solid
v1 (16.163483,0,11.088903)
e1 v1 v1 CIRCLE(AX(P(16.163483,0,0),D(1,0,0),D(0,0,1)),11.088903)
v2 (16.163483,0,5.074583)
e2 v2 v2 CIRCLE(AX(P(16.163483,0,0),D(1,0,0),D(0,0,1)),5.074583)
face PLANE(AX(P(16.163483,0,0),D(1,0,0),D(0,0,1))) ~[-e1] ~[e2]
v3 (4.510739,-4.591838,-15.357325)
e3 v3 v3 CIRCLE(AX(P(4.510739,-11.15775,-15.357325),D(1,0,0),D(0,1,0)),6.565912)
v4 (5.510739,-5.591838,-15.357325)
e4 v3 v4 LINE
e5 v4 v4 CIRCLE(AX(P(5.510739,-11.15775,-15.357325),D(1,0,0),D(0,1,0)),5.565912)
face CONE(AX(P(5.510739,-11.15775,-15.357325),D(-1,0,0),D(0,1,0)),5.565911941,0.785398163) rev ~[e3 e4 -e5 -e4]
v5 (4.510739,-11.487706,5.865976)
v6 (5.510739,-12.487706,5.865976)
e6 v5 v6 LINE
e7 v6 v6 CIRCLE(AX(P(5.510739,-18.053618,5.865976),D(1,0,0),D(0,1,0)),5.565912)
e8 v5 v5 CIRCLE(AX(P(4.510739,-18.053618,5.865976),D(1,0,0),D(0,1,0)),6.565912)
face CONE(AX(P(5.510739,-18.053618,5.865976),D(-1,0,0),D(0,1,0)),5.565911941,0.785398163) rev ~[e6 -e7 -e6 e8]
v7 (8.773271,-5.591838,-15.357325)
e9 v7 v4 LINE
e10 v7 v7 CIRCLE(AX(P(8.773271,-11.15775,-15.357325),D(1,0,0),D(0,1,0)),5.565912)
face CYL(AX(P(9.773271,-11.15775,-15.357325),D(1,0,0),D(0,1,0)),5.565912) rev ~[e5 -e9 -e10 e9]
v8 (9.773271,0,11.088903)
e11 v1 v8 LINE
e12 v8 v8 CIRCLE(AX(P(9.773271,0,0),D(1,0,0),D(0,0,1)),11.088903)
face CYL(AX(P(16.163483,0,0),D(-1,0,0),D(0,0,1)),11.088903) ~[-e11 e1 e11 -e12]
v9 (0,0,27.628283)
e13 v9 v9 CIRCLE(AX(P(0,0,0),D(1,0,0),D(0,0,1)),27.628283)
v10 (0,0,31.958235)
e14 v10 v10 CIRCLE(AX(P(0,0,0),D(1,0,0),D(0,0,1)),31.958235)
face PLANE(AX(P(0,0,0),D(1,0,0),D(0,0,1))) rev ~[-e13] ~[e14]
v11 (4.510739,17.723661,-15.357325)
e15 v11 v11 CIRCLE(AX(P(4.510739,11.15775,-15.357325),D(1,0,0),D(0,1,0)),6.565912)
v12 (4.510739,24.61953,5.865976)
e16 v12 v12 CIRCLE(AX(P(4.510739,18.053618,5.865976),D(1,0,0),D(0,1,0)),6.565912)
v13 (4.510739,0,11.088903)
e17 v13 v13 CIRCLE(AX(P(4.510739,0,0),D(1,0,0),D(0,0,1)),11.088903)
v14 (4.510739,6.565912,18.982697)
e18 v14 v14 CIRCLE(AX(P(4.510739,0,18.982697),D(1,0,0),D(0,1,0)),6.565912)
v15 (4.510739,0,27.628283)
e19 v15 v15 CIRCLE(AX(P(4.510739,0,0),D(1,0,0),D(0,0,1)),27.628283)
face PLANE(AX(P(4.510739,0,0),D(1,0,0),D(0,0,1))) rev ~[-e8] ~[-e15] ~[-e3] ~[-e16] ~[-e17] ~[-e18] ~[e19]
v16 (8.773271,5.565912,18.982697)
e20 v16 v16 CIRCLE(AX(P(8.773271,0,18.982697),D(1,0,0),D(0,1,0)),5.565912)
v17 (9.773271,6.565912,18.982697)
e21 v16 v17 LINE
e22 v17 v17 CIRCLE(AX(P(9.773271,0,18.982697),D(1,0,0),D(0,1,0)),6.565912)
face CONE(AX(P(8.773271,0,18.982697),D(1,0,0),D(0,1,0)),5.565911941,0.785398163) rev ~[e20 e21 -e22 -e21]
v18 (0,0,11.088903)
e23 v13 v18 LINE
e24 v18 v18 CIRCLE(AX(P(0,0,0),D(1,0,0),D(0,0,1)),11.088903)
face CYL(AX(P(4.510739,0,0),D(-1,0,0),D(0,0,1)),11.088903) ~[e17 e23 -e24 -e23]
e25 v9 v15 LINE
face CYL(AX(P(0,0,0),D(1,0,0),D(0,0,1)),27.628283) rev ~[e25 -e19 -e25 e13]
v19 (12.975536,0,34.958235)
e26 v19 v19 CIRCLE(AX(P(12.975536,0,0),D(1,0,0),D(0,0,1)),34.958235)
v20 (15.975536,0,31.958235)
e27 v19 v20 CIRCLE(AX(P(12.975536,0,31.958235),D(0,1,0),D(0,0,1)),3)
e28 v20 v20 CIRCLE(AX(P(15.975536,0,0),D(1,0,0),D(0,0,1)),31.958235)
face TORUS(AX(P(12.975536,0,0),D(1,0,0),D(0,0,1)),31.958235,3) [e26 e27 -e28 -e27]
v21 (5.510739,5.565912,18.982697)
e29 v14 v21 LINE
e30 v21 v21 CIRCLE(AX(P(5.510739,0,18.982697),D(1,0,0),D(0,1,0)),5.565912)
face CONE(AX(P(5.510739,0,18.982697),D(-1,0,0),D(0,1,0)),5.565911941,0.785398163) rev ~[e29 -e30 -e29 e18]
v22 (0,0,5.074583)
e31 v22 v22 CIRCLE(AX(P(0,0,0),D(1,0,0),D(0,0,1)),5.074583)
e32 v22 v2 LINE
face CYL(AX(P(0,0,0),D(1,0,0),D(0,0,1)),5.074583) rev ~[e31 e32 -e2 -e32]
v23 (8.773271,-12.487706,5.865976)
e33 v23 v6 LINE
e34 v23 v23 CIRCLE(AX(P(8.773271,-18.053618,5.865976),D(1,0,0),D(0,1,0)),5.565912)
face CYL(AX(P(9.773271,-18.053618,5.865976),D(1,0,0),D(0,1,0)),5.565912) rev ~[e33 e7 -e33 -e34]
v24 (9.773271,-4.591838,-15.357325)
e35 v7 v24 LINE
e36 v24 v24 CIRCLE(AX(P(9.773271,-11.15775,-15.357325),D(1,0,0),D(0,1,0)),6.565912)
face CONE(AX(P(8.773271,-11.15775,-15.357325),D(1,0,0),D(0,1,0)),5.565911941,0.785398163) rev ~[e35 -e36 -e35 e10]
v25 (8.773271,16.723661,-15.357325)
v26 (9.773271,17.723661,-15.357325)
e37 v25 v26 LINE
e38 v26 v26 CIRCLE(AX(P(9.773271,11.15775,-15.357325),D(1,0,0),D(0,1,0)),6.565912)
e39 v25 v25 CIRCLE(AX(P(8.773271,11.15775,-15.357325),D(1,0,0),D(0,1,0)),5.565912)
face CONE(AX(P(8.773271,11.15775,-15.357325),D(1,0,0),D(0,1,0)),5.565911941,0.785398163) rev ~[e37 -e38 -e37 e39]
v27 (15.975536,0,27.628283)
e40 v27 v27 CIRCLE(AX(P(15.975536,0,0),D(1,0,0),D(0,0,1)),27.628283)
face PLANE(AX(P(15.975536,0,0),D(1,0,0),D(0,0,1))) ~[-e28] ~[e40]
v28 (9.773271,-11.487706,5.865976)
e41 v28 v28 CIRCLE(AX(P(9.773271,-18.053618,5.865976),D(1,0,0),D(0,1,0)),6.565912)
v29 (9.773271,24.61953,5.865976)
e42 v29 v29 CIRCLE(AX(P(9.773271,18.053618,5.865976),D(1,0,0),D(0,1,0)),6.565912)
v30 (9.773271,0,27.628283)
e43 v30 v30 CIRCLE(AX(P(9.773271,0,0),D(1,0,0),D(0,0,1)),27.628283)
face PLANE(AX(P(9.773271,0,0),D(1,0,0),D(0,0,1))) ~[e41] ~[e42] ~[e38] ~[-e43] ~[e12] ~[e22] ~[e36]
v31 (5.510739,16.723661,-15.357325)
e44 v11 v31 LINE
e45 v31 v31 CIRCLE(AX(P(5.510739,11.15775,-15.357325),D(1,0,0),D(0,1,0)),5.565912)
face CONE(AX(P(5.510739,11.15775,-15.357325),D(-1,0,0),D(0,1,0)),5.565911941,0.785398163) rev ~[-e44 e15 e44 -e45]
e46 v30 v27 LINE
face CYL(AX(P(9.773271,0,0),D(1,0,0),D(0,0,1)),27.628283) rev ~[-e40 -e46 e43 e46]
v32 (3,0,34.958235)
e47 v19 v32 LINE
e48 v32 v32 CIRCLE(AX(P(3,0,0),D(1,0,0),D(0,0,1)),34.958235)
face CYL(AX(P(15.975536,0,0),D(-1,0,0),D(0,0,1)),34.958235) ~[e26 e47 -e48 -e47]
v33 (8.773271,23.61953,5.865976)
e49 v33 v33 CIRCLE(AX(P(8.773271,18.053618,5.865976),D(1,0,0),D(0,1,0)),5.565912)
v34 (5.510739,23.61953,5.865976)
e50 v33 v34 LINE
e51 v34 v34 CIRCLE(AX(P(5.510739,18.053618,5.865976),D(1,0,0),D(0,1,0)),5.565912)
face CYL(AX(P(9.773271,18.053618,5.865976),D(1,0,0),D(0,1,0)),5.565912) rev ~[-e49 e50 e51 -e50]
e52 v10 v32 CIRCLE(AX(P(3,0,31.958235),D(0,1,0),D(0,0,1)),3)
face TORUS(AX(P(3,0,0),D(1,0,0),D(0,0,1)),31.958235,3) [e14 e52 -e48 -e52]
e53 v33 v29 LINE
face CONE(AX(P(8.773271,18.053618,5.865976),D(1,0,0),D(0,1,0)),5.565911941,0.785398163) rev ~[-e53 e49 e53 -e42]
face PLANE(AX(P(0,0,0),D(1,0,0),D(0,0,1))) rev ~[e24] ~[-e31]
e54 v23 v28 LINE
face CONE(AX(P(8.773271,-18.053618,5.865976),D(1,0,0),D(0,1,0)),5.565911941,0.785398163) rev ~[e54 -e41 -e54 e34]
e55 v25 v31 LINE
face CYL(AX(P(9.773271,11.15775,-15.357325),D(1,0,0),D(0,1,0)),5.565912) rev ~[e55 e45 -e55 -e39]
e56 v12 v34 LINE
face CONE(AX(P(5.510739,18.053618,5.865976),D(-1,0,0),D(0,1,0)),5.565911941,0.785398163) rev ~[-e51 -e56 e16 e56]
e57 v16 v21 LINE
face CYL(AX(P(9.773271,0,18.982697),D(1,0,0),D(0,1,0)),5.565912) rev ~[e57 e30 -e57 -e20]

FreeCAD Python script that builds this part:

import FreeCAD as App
import Part
import Sketcher
Q = App.Units.Quantity


def edges_at(feature, points):
    """Names of the edges that pass closest to the given points."""
    edges = feature.Shape.Edges
    near = lambda p: min(range(len(edges)), key=lambda i: edges[i].distToShape(Part.Vertex(*p))[0])
    return sorted({f"Edge{near(p) + 1}" for p in points})


def add_polygon(sketch, points):
    """Adds a closed chain of lines whose ends are joined by coincident constraints."""
    first, n = sketch.GeometryCount, len(points)
    for a, b in zip(points, points[1:] + points[:1]):
        sketch.addGeometry(Part.LineSegment(App.Vector(*a, 0), App.Vector(*b, 0)), False)
    for i in range(n):
        sketch.addConstraint(Sketcher.Constraint("Coincident", first + i, 2, first + (i + 1) % n, 1))

doc = App.newDocument("Part")
params = doc.addObject("Spreadsheet::Sheet", "Params")
for row, (alias, value) in enumerate([
    ("revolution_angle", "360 deg"),
    ("pocket1_length", "25 mm"),
    ("fillet_radius", "3 mm"),
    ("chamfer_size", "1 mm"),
], start=1):
    params.set(f"A{row}", alias)
    params.set(f"B{row}", "=" + value)
    params.setAlias(f"B{row}", alias)

body = doc.addObject("PartDesign::Body", "Body")

sketch1 = doc.addObject("Sketcher::SketchObject", "Sketch")
body.addObject(sketch1)
sketch1.AttachmentSupport = (doc.XZ_Plane, [""])
sketch1.MapMode = "FlatFace"
add_polygon(sketch1, [(0, 11.1), (0, 5.1), (16.2, 5.1), (16.2, 11.1), (9.8, 11.1), (9.8, 27.6), (16, 27.6), (16, 35), (0, 35), (0, 27.6), (4.5, 27.6), (4.5, 11.1)])
sketch1.addConstraint(Sketcher.Constraint("Vertical", 0))
sketch1.addConstraint(Sketcher.Constraint("Horizontal", 1))
sketch1.addConstraint(Sketcher.Constraint("Vertical", 2))
sketch1.addConstraint(Sketcher.Constraint("Horizontal", 3))
sketch1.addConstraint(Sketcher.Constraint("Vertical", 4))
sketch1.addConstraint(Sketcher.Constraint("Horizontal", 5))
sketch1.addConstraint(Sketcher.Constraint("Vertical", 6))
sketch1.addConstraint(Sketcher.Constraint("Horizontal", 7))
sketch1.addConstraint(Sketcher.Constraint("Vertical", 8))
sketch1.addConstraint(Sketcher.Constraint("Horizontal", 9))
sketch1.addConstraint(Sketcher.Constraint("Vertical", 10))
sketch1.addConstraint(Sketcher.Constraint("Horizontal", 11))
sketch1.addConstraint(Sketcher.Constraint("PointOnObject", 0, 2, -2))
sketch1.addConstraint(Sketcher.Constraint("PointOnObject", 7, 2, -2))
sketch1.addConstraint(Sketcher.Constraint("Horizontal", 5, 2, 8, 2))
sketch1.addConstraint(Sketcher.Constraint("Horizontal", 3, 2, 10, 2))
sketch1.addConstraint(Sketcher.Constraint("DistanceX", 9, 1, 9, 2, Q("4.510739 mm")))
sketch1.addConstraint(Sketcher.Constraint("DistanceY", 0, 2, 0, 1, Q("6.01432 mm")))
sketch1.addConstraint(Sketcher.Constraint("DistanceY", 4, 1, 4, 2, Q("16.53938 mm")))
sketch1.addConstraint(Sketcher.Constraint("DistanceY", 6, 1, 6, 2, Q("7.329952 mm")))
sketch1.addConstraint(Sketcher.Constraint("DistanceX", 1, 1, 1, 2, Q("16.163483 mm")))
sketch1.addConstraint(Sketcher.Constraint("DistanceX", 3, 2, 3, 1, Q("6.390213 mm")))
sketch1.addConstraint(Sketcher.Constraint("DistanceX", 5, 1, 5, 2, Q("6.202265 mm")))
sketch1.addConstraint(Sketcher.Constraint("DistanceY", -1, 1, 0, 2, Q("5.074583 mm")))
revolution = doc.addObject("PartDesign::Revolution", "Revolution")
body.addObject(revolution)
revolution.Profile = sketch1
revolution.ReferenceAxis = (sketch1, ["H_Axis"])
revolution.setExpression("Angle", "Params.revolution_angle")

sketch2 = doc.addObject("Sketcher::SketchObject", "Sketch001")
body.addObject(sketch2)
sketch2.AttachmentSupport = (doc.YZ_Plane, [""])
sketch2.MapMode = "FlatFace"
sketch2.AttachmentOffset = App.Placement(App.Vector(0, 0, 9.773271), App.Rotation())
sketch2.addGeometry(Part.Circle(App.Vector(0, 19, 0), App.Vector(0, 0, 1), 6), False)
sketch2.addGeometry(Part.Circle(App.Vector(18, 6, 0), App.Vector(0, 0, 1), 6), False)
sketch2.addGeometry(Part.Circle(App.Vector(11, -15, 0), App.Vector(0, 0, 1), 6), False)
sketch2.addGeometry(Part.Circle(App.Vector(-18, 6, 0), App.Vector(0, 0, 1), 6), False)
sketch2.addGeometry(Part.Circle(App.Vector(-11, -15, 0), App.Vector(0, 0, 1), 6), False)
sketch2.addConstraint(Sketcher.Constraint("Equal", 0, 1))
sketch2.addConstraint(Sketcher.Constraint("Equal", 1, 2))
sketch2.addConstraint(Sketcher.Constraint("Equal", 2, 3))
sketch2.addConstraint(Sketcher.Constraint("Equal", 3, 4))
sketch2.addConstraint(Sketcher.Constraint("Symmetric", 1, 3, 3, 3, -2))
sketch2.addConstraint(Sketcher.Constraint("Symmetric", 2, 3, 4, 3, -2))
sketch2.addConstraint(Sketcher.Constraint("PointOnObject", 0, 3, -2))
sketch2.addConstraint(Sketcher.Constraint("Diameter", 0, Q("11.131824 mm")))
sketch2.addConstraint(Sketcher.Constraint("DistanceY", 2, 3, 1, 3, Q("21.223301 mm")))
sketch2.addConstraint(Sketcher.Constraint("DistanceX", 4, 3, 2, 3, Q("22.315499 mm")))
sketch2.addConstraint(Sketcher.Constraint("DistanceY", 1, 3, 0, 3, Q("13.116721 mm")))
sketch2.addConstraint(Sketcher.Constraint("DistanceX", 2, 3, 1, 3, Q("6.895868 mm")))
sketch2.addConstraint(Sketcher.Constraint("DistanceY", -1, 1, 0, 3, Q("18.982697 mm")))
pocket1 = doc.addObject("PartDesign::Pocket", "Pocket")
body.addObject(pocket1)
pocket1.Profile = sketch2
pocket1.setExpression("Length", "Params.pocket1_length")
doc.recompute()

fillet = doc.addObject("PartDesign::Fillet", "Fillet")
body.addObject(fillet)
fillet.Base = (pocket1, edges_at(pocket1, [(15.976, 0, -34.958), (0, 0, -34.958)]))
fillet.setExpression("Radius", "Params.fillet_radius")
doc.recompute()

chamfer = doc.addObject("PartDesign::Chamfer", "Chamfer")
body.addObject(chamfer)
chamfer.Base = (fillet, edges_at(fillet, [
    (9.773, 12.488, 5.866),
    (9.773, -5.566, 18.983),
    (7.142, 5.566, 18.983),
    (4.511, -5.566, 18.983),
    (9.773, -23.62, 5.866),
    (7.142, -12.488, 5.866),
    (4.511, -23.62, 5.866),
    (9.773, -16.724, -15.357),
    (7.142, -5.592, -15.357),
    (4.511, -16.724, -15.357),
    (9.773, 5.592, -15.357),
    (7.142, 16.724, -15.357),
    (4.511, 5.592, -15.357),
    (7.142, 23.62, 5.866),
    (4.511, 12.488, 5.866),
]))
chamfer.setExpression("Size", "Params.chamfer_size")

doc.recompute()
